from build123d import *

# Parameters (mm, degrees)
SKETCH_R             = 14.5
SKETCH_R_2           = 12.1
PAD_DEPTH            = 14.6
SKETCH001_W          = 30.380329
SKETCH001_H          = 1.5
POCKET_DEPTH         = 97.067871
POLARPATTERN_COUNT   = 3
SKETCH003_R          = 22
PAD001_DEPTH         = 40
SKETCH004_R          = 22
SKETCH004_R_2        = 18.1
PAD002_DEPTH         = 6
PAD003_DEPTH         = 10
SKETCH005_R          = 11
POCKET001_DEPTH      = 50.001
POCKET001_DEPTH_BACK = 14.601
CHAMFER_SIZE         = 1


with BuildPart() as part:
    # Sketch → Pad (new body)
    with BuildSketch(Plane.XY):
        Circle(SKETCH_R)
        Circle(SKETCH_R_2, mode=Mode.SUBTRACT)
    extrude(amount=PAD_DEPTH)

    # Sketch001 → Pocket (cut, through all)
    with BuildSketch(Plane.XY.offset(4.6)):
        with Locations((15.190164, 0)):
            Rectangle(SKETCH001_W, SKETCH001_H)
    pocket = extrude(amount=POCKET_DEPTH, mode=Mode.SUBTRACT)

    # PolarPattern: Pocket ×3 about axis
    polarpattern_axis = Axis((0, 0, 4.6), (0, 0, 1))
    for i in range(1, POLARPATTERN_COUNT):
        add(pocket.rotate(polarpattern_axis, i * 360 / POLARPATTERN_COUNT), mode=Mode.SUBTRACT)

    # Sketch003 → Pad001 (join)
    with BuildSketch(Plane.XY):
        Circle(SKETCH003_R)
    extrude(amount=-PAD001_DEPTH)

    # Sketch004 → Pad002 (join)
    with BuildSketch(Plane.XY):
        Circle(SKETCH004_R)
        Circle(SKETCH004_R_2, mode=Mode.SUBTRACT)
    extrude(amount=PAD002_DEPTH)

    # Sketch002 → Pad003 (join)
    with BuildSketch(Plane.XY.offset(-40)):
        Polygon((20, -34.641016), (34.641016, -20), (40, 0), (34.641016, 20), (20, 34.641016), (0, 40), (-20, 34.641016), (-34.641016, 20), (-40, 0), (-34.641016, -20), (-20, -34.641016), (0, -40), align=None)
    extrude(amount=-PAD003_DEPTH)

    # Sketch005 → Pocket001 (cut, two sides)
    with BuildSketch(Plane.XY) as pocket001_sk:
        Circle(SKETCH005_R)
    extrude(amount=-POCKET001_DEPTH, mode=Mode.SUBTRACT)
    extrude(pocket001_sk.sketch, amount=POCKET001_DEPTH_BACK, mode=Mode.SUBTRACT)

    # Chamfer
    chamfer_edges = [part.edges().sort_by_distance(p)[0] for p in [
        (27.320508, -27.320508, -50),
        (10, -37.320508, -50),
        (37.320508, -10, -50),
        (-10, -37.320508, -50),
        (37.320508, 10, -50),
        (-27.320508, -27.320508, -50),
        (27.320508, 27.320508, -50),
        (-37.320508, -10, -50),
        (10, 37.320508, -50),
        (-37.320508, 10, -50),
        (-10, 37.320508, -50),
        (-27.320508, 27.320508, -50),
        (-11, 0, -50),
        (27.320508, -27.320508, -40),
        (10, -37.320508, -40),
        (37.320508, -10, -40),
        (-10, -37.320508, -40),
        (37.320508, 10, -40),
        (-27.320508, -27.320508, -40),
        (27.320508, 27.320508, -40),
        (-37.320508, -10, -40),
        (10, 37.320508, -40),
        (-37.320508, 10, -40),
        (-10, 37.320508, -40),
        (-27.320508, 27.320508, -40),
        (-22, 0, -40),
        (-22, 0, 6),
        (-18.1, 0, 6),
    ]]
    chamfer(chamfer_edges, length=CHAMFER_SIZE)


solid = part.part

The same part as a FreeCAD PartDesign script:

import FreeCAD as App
import Part
import Sketcher
Q = App.Units.Quantity


def edges_at(feature, points):
    """Names of the edges that pass closest to the given points."""
    edges = feature.Shape.Edges
    near = lambda p: min(range(len(edges)), key=lambda i: edges[i].distToShape(Part.Vertex(*p))[0])
    return sorted({f"Edge{near(p) + 1}" for p in points})


def add_polygon(sketch, points):
    """Adds a closed chain of lines whose ends are joined by coincident constraints."""
    first, n = sketch.GeometryCount, len(points)
    for a, b in zip(points, points[1:] + points[:1]):
        sketch.addGeometry(Part.LineSegment(App.Vector(*a, 0), App.Vector(*b, 0)), False)
    for i in range(n):
        sketch.addConstraint(Sketcher.Constraint("Coincident", first + i, 2, first + (i + 1) % n, 1))

doc = App.newDocument("Part")
body = doc.addObject("PartDesign::Body", "Body")

# Sketch on XY plane
sketch1 = doc.addObject("Sketcher::SketchObject", "Sketch")
body.addObject(sketch1)
sketch1.AttachmentSupport = (doc.XY_Plane, [""])
sketch1.MapMode = "FlatFace"
sketch1.addGeometry(Part.Circle(App.Vector(0, 0, 0), App.Vector(0, 0, 1), 14.5), False)
sketch1.addGeometry(Part.Circle(App.Vector(0, 0, 0), App.Vector(0, 0, 1), 12.1), False)
sketch1.addConstraint(Sketcher.Constraint("Coincident", 0, 3, -1, 1))
sketch1.addConstraint(Sketcher.Constraint("Coincident", 1, 3, -1, 1))
sketch1.addConstraint(Sketcher.Constraint("Diameter", 0, Q("29 mm")))
sketch1.addConstraint(Sketcher.Constraint("Diameter", 1, Q("24.2 mm")))
pad1 = doc.addObject("PartDesign::Pad", "Pad")
body.addObject(pad1)
pad1.Profile = sketch1
pad1.Length = 14.6

# Sketch on XY plane
sketch2 = doc.addObject("Sketcher::SketchObject", "Sketch001")
body.addObject(sketch2)
sketch2.AttachmentSupport = (doc.XY_Plane, [""])
sketch2.MapMode = "FlatFace"
sketch2.AttachmentOffset = App.Placement(App.Vector(0, 0, 4.6), App.Rotation())
add_polygon(sketch2, [(0, 0.75), (0, -0.75), (30.380329, -0.75), (30.380329, 0.75)])  # lines 0-3
sketch2.addConstraint(Sketcher.Constraint("Vertical", 0))
sketch2.addConstraint(Sketcher.Constraint("Horizontal", 1))
sketch2.addConstraint(Sketcher.Constraint("Vertical", 2))
sketch2.addConstraint(Sketcher.Constraint("Horizontal", 3))
sketch2.addConstraint(Sketcher.Constraint("Symmetric", 0, 2, 3, 2, -1, 1))
sketch2.addConstraint(Sketcher.Constraint("DistanceY", 0, 2, 0, 1, Q("1.5 mm")))
sketch2.addConstraint(Sketcher.Constraint("DistanceX", 1, 1, 1, 2, Q("30.380329 mm")))
pocket1 = doc.addObject("PartDesign::Pocket", "Pocket")
body.addObject(pocket1)
pocket1.Profile = sketch2
pocket1.Type = "ThroughAll"
pocket1.Reversed = True
doc.recompute()

polarpattern = doc.addObject("PartDesign::PolarPattern", "PolarPattern")
body.addObject(polarpattern)
polarpattern.Originals = [pocket1]
polarpattern.Axis = (doc.Z_Axis, [""])
polarpattern.Angle = 360
polarpattern.Occurrences = 3
body.Tip = polarpattern

# Sketch on XY plane
sketch3 = doc.addObject("Sketcher::SketchObject", "Sketch002")
body.addObject(sketch3)
sketch3.AttachmentSupport = (doc.XY_Plane, [""])
sketch3.MapMode = "FlatFace"
sketch3.addGeometry(Part.Circle(App.Vector(0, 0, 0), App.Vector(0, 0, 1), 22), False)
sketch3.addConstraint(Sketcher.Constraint("Coincident", 0, 3, -1, 1))
sketch3.addConstraint(Sketcher.Constraint("Diameter", 0, Q("44 mm")))
pad2 = doc.addObject("PartDesign::Pad", "Pad001")
body.addObject(pad2)
pad2.Profile = sketch3
pad2.Length = 40
pad2.Reversed = True

# Sketch on XY plane
sketch4 = doc.addObject("Sketcher::SketchObject", "Sketch003")
body.addObject(sketch4)
sketch4.AttachmentSupport = (doc.XY_Plane, [""])
sketch4.MapMode = "FlatFace"
sketch4.addGeometry(Part.Circle(App.Vector(0, 0, 0), App.Vector(0, 0, 1), 22), False)
sketch4.addGeometry(Part.Circle(App.Vector(0, 0, 0), App.Vector(0, 0, 1), 18.1), False)
sketch4.addConstraint(Sketcher.Constraint("Coincident", 0, 3, -1, 1))
sketch4.addConstraint(Sketcher.Constraint("Coincident", 1, 3, -1, 1))
sketch4.addConstraint(Sketcher.Constraint("Diameter", 0, Q("44 mm")))
sketch4.addConstraint(Sketcher.Constraint("Diameter", 1, Q("36.2 mm")))
pad3 = doc.addObject("PartDesign::Pad", "Pad002")
body.addObject(pad3)
pad3.Profile = sketch4
pad3.Length = 6

# Sketch on XY plane
sketch5 = doc.addObject("Sketcher::SketchObject", "Sketch004")
body.addObject(sketch5)
sketch5.AttachmentSupport = (doc.XY_Plane, [""])
sketch5.MapMode = "FlatFace"
sketch5.AttachmentOffset = App.Placement(App.Vector(0, 0, -40), App.Rotation())
add_polygon(sketch5, [(20, -34.641016), (34.641016, -20), (40, 0), (34.641016, 20), (20, 34.641016), (0, 40), (-20, 34.641016), (-34.641016, 20), (-40, 0), (-34.641016, -20), (-20, -34.641016), (0, -40)])  # lines 0-11
sketch5.addConstraint(Sketcher.Constraint("Symmetric", 0, 2, 6, 2, -1, 1))
sketch5.addConstraint(Sketcher.Constraint("Symmetric", 1, 2, 7, 2, -1, 1))
sketch5.addConstraint(Sketcher.Constraint("Symmetric", 2, 2, 8, 2, -1, 1))
sketch5.addConstraint(Sketcher.Constraint("Symmetric", 3, 2, 9, 2, -1, 1))
sketch5.addConstraint(Sketcher.Constraint("Symmetric", 4, 2, 10, 2, -1, 1))
sketch5.addConstraint(Sketcher.Constraint("Symmetric", 5, 2, 11, 2, -1, 1))
sketch5.addConstraint(Sketcher.Constraint("Symmetric", 3, 2, 5, 2, -2))
sketch5.addConstraint(Sketcher.Constraint("Symmetric", 2, 2, 6, 2, -2))
sketch5.addConstraint(Sketcher.Constraint("PointOnObject", 1, 2, -1))
sketch5.addConstraint(Sketcher.Constraint("PointOnObject", 4, 2, -2))
sketch5.addConstraint(Sketcher.Constraint("Perpendicular", 0, 3))
sketch5.addConstraint(Sketcher.Constraint("Perpendicular", 1, 4))
sketch5.addConstraint(Sketcher.Constraint("Equal", 0, 1))
sketch5.addConstraint(Sketcher.Constraint("Equal", 3, 4))
sketch5.addConstraint(Sketcher.Constraint("Angle", 1, Q("75 deg")))
sketch5.addConstraint(Sketcher.Constraint("DistanceY", 0, 2, -1, 1, Q("20 mm")))
pad4 = doc.addObject("PartDesign::Pad", "Pad003")
body.addObject(pad4)
pad4.Profile = sketch5
pad4.Length = 10
pad4.Reversed = True

# Sketch on XY plane
sketch6 = doc.addObject("Sketcher::SketchObject", "Sketch005")
body.addObject(sketch6)
sketch6.AttachmentSupport = (doc.XY_Plane, [""])
sketch6.MapMode = "FlatFace"
sketch6.addGeometry(Part.Circle(App.Vector(0, 0, 0), App.Vector(0, 0, 1), 11), False)
sketch6.addConstraint(Sketcher.Constraint("Coincident", 0, 3, -1, 1))
sketch6.addConstraint(Sketcher.Constraint("Diameter", 0, Q("22 mm")))
pocket2 = doc.addObject("PartDesign::Pocket", "Pocket001")
body.addObject(pocket2)
pocket2.Profile = sketch6
pocket2.Type = "ThroughAll"
pocket2.Midplane = True
doc.recompute()

chamfer = doc.addObject("PartDesign::Chamfer", "Chamfer")
body.addObject(chamfer)
chamfer.Base = (pocket2, edges_at(pocket2, [
    (27.321, -27.321, -50),
    (10, -37.321, -50),
    (37.321, -10, -50),
    (-10, -37.321, -50),
    (37.321, 10, -50),
    (-27.321, -27.321, -50),
    (27.321, 27.321, -50),
    (-37.321, -10, -50),
    (10, 37.321, -50),
    (-37.321, 10, -50),
    (-10, 37.321, -50),
    (-27.321, 27.321, -50),
    (-11, 0, -50),
    (27.321, -27.321, -40),
    (10, -37.321, -40),
    (37.321, -10, -40),
    (-10, -37.321, -40),
    (37.321, 10, -40),
    (-27.321, -27.321, -40),
    (27.321, 27.321, -40),
    (-37.321, -10, -40),
    (10, 37.321, -40),
    (-37.321, 10, -40),
    (-10, 37.321, -40),
    (-27.321, 27.321, -40),
    (-22, 0, -40),
    (-22, 0, 6),
    (-18.1, 0, 6),
]))
chamfer.Size = 1

doc.recompute()
